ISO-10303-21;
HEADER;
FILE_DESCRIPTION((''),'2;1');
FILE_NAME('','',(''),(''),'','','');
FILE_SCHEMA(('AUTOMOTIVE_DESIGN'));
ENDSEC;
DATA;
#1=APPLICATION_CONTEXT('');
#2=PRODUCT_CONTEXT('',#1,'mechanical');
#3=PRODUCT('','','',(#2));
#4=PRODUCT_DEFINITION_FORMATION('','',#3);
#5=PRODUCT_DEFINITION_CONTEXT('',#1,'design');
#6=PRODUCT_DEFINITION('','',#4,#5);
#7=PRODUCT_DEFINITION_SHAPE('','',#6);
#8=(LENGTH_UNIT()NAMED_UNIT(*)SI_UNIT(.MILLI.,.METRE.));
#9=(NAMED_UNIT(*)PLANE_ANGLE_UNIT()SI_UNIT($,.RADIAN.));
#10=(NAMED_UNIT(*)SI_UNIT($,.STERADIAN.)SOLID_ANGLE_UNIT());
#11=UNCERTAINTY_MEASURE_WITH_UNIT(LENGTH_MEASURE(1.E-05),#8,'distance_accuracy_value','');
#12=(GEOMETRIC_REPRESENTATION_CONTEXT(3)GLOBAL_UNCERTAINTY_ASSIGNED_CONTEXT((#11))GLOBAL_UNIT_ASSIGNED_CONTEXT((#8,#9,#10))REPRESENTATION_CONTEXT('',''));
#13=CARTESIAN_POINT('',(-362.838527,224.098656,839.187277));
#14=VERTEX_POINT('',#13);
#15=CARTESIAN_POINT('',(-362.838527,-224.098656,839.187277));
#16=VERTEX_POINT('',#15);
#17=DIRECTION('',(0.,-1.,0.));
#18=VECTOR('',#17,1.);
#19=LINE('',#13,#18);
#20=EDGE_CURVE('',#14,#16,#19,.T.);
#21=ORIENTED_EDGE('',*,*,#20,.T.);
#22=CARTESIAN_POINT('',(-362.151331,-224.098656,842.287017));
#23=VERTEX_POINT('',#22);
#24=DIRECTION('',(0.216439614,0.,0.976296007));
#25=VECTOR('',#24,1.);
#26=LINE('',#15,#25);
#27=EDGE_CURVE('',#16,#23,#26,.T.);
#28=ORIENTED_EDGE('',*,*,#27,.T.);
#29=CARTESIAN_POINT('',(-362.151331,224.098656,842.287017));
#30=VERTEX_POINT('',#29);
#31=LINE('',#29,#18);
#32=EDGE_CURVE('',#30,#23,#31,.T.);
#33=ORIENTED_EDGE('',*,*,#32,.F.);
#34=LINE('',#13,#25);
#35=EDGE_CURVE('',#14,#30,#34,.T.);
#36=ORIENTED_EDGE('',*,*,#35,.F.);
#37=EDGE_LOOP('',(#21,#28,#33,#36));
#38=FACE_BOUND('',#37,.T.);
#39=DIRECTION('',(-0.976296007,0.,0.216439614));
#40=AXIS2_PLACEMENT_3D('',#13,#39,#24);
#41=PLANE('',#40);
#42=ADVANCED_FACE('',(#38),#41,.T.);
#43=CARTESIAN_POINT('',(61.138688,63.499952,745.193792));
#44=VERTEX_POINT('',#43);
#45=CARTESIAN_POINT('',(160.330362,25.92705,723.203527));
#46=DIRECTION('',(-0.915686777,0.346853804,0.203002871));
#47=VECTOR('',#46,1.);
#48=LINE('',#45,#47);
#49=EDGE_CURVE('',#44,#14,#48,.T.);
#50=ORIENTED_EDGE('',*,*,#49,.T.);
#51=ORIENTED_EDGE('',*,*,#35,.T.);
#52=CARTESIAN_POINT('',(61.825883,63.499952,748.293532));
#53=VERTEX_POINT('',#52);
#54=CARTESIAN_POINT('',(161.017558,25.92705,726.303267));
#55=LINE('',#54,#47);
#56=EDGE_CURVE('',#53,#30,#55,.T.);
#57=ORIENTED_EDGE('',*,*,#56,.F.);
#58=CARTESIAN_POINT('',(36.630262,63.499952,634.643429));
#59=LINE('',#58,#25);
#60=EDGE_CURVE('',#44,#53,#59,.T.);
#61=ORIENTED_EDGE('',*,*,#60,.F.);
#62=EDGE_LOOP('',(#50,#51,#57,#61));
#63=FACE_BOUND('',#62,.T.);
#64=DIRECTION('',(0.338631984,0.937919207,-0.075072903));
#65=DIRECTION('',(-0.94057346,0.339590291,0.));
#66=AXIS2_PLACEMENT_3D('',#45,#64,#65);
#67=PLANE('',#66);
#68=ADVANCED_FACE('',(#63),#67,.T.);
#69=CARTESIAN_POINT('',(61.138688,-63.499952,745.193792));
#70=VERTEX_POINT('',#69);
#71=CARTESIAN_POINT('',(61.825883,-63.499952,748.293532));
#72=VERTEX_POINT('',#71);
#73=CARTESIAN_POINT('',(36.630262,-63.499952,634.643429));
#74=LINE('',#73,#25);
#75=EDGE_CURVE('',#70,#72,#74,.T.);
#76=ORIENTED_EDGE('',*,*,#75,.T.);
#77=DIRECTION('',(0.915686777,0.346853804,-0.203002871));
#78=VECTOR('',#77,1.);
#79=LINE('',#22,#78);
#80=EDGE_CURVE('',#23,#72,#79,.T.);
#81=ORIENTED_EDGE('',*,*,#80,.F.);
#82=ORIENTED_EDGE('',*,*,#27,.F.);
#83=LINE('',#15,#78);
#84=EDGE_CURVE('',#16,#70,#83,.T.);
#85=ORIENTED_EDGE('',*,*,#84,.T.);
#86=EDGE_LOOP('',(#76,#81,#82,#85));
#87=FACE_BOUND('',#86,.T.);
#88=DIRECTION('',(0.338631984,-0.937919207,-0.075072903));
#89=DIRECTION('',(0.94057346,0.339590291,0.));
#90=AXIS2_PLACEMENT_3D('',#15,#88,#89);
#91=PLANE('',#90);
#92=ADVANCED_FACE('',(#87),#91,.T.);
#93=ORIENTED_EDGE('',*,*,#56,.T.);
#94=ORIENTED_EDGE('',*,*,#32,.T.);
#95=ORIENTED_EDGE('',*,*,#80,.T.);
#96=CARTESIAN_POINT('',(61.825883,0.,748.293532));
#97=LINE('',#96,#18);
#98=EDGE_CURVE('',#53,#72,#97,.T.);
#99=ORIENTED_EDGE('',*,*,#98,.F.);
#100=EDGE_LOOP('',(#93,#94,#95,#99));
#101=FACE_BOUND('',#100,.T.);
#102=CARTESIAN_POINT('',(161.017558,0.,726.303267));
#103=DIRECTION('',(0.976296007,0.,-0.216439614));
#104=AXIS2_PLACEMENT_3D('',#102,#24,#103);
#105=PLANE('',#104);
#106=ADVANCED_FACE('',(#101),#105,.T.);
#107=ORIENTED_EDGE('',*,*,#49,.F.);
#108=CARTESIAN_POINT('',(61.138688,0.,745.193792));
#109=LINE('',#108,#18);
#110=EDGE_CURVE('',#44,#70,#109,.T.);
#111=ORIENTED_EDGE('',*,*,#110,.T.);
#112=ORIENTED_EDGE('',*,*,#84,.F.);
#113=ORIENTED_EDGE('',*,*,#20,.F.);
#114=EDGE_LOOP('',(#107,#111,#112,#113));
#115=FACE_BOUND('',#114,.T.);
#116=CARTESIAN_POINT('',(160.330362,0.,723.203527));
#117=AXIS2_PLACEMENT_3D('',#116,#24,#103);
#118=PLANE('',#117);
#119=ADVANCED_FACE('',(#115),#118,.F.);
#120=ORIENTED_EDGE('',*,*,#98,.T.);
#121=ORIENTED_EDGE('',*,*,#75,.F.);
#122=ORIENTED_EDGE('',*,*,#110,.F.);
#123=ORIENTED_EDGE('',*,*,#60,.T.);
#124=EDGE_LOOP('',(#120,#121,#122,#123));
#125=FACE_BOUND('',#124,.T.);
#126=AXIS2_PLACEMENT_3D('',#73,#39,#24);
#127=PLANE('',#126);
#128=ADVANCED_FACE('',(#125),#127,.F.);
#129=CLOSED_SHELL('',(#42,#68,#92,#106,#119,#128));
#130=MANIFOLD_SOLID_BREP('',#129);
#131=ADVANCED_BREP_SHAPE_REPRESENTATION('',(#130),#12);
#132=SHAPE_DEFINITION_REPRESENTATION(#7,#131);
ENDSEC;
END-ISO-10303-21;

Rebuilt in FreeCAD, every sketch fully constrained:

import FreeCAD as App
import Part
import Sketcher
Q = App.Units.Quantity


def add_polygon(sketch, points):
    """Adds a closed chain of lines whose ends are joined by coincident constraints."""
    first, n = sketch.GeometryCount, len(points)
    for a, b in zip(points, points[1:] + points[:1]):
        sketch.addGeometry(Part.LineSegment(App.Vector(*a, 0), App.Vector(*b, 0)), False)
    for i in range(n):
        sketch.addConstraint(Sketcher.Constraint("Coincident", first + i, 2, first + (i + 1) % n, 1))

doc = App.newDocument("Part")
params = doc.addObject("Spreadsheet::Sheet", "Params")
for row, (alias, value) in enumerate([
    ("pad1_length", "0.125 in"),
    ("sketch2_width", "4 in"),
], start=1):
    params.set(f"A{row}", alias)
    params.set(f"B{row}", "=" + value)
    params.setAlias(f"B{row}", alias)

body = doc.addObject("PartDesign::Body", "Body")

# Sketch on an angled plane
sketch1 = doc.addObject("Sketcher::SketchObject", "Sketch")
body.addObject(sketch1)
sketch1.Placement = App.Placement(App.Vector(161.017558, 0, 726.303267), App.Rotation(App.Vector(0, 1, 0), App.Vector(-0.976296007, 0, 0.216439614), App.Vector(0.216439614, 0, 0.976296007), "ZXY"))
add_polygon(sketch1, [(-224, 536), (-26, 0), (26, 0), (224, 536)])  # lines 0-3
sketch1.addConstraint(Sketcher.Constraint("Horizontal", 1))
sketch1.addConstraint(Sketcher.Constraint("Horizontal", 3))
sketch1.addConstraint(Sketcher.Constraint("Symmetric", 0, 2, 1, 2, -1, 1))
sketch1.addConstraint(Sketcher.Constraint("Equal", 0, 2))
sketch1.addConstraint(Sketcher.Constraint("DistanceX", 1, 1, 1, 2, Q("2.0415 in")))
sketch1.addConstraint(Sketcher.Constraint("DistanceX", 3, 2, 3, 1, Q("448.197312 mm")))
sketch1.addConstraint(Sketcher.Constraint("Distance", 0, Q("571.340443 mm")))
pad1 = doc.addObject("PartDesign::Pad", "Pad")
body.addObject(pad1)
pad1.Profile = sketch1
pad1.setExpression("Length", "Params.pad1_length")
pad1.Reversed = True

# Sketch on an angled plane
sketch2 = doc.addObject("Sketcher::SketchObject", "Sketch001")
body.addObject(sketch2)
sketch2.Placement = App.Placement(App.Vector(161.017558, 0, 726.303267), App.Rotation(App.Vector(0.976296007, 0, -0.216439614), App.Vector(0, 1, 0), App.Vector(0.216439614, 0, 0.976296007), "ZXY"))
add_polygon(sketch2, [(-102, 63), (-102, -63), (0, -63), (0, 63)])  # lines 0-3
sketch2.addConstraint(Sketcher.Constraint("Vertical", 0))
sketch2.addConstraint(Sketcher.Constraint("Horizontal", 1))
sketch2.addConstraint(Sketcher.Constraint("Vertical", 2))
sketch2.addConstraint(Sketcher.Constraint("Horizontal", 3))
sketch2.addConstraint(Sketcher.Constraint("Symmetric", 1, 2, 2, 2, -1, 1))
sketch2.addConstraint(Sketcher.Constraint("DistanceX", 1, 1, 1, 2, Q("4 in")))
sketch2.addConstraint(Sketcher.Constraint("DistanceY", 0, 2, 0, 1, Q("126.999904 mm")))
sketch2.setExpression("Constraints[9]", "Params.sketch2_width")
pocket1 = doc.addObject("PartDesign::Pocket", "Pocket")
body.addObject(pocket1)
pocket1.Profile = sketch2
pocket1.Type = "ThroughAll"
pocket1.Midplane = True

doc.recompute()
